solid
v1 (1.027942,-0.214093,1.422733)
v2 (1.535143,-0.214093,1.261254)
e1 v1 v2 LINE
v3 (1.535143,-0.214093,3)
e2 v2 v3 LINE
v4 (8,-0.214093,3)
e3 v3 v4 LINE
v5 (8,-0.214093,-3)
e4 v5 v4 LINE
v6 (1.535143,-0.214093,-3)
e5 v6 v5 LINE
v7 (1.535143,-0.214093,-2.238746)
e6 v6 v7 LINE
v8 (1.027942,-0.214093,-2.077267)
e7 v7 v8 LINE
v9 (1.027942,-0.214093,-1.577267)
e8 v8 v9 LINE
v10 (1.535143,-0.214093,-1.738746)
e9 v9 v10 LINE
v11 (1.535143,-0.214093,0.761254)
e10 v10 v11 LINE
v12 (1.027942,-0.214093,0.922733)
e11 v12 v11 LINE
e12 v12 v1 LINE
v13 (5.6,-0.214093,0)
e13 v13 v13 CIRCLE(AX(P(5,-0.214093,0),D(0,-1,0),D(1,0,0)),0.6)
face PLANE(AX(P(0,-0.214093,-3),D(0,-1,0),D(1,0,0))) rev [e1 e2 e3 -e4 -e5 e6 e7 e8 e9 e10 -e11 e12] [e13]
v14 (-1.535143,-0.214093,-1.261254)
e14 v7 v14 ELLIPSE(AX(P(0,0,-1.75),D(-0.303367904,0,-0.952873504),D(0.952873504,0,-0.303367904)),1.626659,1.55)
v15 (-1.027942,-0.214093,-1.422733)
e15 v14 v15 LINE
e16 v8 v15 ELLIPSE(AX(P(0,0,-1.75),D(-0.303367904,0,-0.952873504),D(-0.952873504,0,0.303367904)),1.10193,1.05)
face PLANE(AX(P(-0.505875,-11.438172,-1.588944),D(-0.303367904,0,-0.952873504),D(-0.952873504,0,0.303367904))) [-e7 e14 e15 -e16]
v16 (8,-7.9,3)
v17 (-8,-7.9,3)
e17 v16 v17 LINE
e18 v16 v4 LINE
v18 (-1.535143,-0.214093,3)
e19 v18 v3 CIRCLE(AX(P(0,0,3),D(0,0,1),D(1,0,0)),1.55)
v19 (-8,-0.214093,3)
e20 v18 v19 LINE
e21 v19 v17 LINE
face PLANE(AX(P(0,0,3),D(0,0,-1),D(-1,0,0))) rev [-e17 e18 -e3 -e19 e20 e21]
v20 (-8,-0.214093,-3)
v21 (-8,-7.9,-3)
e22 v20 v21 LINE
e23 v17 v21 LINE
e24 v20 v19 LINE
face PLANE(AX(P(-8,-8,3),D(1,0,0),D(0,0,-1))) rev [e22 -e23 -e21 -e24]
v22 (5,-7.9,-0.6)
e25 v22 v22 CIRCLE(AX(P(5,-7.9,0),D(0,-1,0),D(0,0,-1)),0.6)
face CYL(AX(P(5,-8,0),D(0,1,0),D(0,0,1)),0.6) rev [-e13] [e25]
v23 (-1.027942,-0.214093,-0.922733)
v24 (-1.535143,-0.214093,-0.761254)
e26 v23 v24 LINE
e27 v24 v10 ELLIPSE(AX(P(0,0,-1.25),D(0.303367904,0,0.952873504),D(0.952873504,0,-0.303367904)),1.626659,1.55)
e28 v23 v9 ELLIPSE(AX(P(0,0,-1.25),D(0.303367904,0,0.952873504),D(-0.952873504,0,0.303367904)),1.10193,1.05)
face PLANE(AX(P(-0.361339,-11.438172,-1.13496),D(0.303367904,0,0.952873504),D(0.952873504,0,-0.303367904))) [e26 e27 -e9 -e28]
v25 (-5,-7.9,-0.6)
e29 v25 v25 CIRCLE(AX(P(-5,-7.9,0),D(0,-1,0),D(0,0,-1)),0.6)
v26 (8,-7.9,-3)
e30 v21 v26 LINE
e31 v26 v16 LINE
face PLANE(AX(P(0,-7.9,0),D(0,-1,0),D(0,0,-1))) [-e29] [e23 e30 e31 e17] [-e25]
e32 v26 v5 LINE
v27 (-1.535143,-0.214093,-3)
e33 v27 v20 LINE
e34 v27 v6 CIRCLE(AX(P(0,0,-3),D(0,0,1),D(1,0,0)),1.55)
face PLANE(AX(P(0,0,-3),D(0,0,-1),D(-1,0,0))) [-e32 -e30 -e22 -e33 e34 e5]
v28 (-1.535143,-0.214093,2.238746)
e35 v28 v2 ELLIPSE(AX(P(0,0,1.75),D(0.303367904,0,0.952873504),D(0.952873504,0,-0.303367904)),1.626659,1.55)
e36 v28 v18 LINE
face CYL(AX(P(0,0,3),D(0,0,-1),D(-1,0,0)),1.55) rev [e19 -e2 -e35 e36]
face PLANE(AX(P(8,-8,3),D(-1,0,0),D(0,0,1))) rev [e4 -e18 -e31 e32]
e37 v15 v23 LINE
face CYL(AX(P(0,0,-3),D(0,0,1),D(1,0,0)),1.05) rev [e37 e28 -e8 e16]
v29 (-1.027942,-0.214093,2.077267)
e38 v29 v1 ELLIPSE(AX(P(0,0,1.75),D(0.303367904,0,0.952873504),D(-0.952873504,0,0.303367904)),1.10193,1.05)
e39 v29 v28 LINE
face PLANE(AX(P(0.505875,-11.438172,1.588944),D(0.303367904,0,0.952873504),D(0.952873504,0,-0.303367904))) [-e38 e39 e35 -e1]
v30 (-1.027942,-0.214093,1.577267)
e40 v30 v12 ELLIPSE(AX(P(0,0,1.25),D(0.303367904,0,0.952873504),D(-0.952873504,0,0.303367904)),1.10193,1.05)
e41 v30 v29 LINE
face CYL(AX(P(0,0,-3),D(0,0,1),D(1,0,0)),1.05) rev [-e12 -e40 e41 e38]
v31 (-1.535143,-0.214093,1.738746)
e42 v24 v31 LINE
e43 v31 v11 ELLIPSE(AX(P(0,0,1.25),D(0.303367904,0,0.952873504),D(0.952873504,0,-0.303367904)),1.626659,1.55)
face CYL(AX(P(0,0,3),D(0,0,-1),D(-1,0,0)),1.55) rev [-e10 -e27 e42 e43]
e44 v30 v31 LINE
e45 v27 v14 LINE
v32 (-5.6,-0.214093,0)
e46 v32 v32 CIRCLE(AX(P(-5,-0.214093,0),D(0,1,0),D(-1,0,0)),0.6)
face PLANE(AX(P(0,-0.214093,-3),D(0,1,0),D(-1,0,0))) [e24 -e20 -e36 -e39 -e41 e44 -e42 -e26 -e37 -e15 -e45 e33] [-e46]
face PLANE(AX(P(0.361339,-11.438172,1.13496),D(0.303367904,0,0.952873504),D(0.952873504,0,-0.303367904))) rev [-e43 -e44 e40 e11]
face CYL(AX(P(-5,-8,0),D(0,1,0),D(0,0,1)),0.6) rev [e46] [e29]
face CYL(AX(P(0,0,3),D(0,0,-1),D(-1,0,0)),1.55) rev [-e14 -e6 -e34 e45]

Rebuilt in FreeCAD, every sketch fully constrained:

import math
import FreeCAD as App
import Part
import Sketcher

V = App.Vector
Q = App.Units.Quantity


def add_polygon(sketch, points):
    """Adds a closed chain of lines whose ends are joined by coincident constraints."""
    first, n = sketch.GeometryCount, len(points)
    for a, b in zip(points, points[1:] + points[:1]):
        sketch.addGeometry(Part.LineSegment(App.Vector(*a, 0), App.Vector(*b, 0)), False)
    for i in range(n):
        sketch.addConstraint(Sketcher.Constraint("Coincident", first + i, 2, first + (i + 1) % n, 1))

doc = App.newDocument("Part")
body = doc.addObject("PartDesign::Body", "Body")

# Sketch on XY plane
sketch1 = body.newObject("Sketcher::SketchObject", "Sketch")
sketch1.AttachmentSupport = (doc.getObject("XY_Plane"), [""])
sketch1.MapMode = "FlatFace"
add_polygon(sketch1, [(-8, 8), (-8, -8), (8, -8), (8, 8)])  # lines 0-3
sketch1.addGeometry(Part.Circle(V(0, 0, 0), V(0, 0, 1), 1.6), False)  # 4
sketch1.addConstraint(Sketcher.Constraint("Vertical", 0))
sketch1.addConstraint(Sketcher.Constraint("Horizontal", 1))
sketch1.addConstraint(Sketcher.Constraint("Vertical", 2))
sketch1.addConstraint(Sketcher.Constraint("Horizontal", 3))
sketch1.addConstraint(Sketcher.Constraint("Coincident", 4, 3, -1, 1))
sketch1.addConstraint(Sketcher.Constraint("Symmetric", 0, 2, 2, 2, -1, 1))
sketch1.addConstraint(Sketcher.Constraint("Equal", 3, 0))
sketch1.addConstraint(Sketcher.Constraint("Diameter", 4, 3.1))
sketch1.addConstraint(Sketcher.Constraint("DistanceX", 1, 1, 1, 2, 16.0))
pad1 = body.newObject("PartDesign::Pad", "Pad")
pad1.Profile = sketch1
pad1.Length = 6
pad1.Midplane = True

# Sketch on XZ plane
sketch2 = body.newObject("Sketcher::SketchObject", "Sketch001")
sketch2.AttachmentSupport = (doc.getObject("XZ_Plane"), [""])
sketch2.MapMode = "FlatFace"
add_polygon(sketch2, [(-1.55, 1.74), (-1.55, 2.24), (1.55, 1.26), (1.55, 0.76)])  # lines 0-3
add_polygon(sketch2, [(-1.55, -1.26), (-1.55, -0.76), (1.55, -1.74), (1.55, -2.24)])  # lines 4-7
sketch2.addConstraint(Sketcher.Constraint("Vertical", 0))
sketch2.addConstraint(Sketcher.Constraint("Vertical", 2))
sketch2.addConstraint(Sketcher.Constraint("Vertical", 4))
sketch2.addConstraint(Sketcher.Constraint("Vertical", 6))
sketch2.addConstraint(Sketcher.Constraint("Symmetric", 2, 2, 4, 2, -1, 1))
sketch2.addConstraint(Sketcher.Constraint("Symmetric", 3, 2, 5, 2, -1, 1))
sketch2.addConstraint(Sketcher.Constraint("Parallel", 1, 3))
sketch2.addConstraint(Sketcher.Constraint("Parallel", 5, 7))
sketch2.addConstraint(Sketcher.Constraint("Vertical", 3, 2, 4, 2))
sketch2.addConstraint(Sketcher.Constraint("Equal", 2, 4))
sketch2.addConstraint(Sketcher.Constraint("DistanceY", 0, 1, 0, 2, 0.5))
sketch2.addConstraint(Sketcher.Constraint("DistanceY", 4, 2, 0, 2, 3.0))
sketch2.addConstraint(Sketcher.Constraint("Angle", 1, Q("-17.66 deg")))
sketch2.addConstraint(Sketcher.Constraint("DistanceX", 0, 2, 1, 2, 3.1))
pad2 = body.newObject("PartDesign::Pad", "Pad001")
pad2.Profile = sketch2
pad2.Length = 8

# Sketch on XY plane
sketch3 = body.newObject("Sketcher::SketchObject", "Sketch002")
sketch3.AttachmentSupport = (doc.getObject("XY_Plane"), [""])
sketch3.MapMode = "FlatFace"
sketch3.addGeometry(Part.LineSegment(V(8, 8, 0), V(-8, 8, 0)), False)
sketch3.addGeometry(Part.LineSegment(V(-8, 8, 0), V(-8, -0.2, 0)), False)
sketch3.addGeometry(Part.LineSegment(V(-8, -0.2, 0), V(-1, -0.2, 0)), False)
sketch3.addGeometry(Part.ArcOfCircle(Part.Circle(V(0, 0, 0), V(0, 0, 1), 1.1), math.radians(-168), math.radians(-12)), False)
sketch3.addGeometry(Part.LineSegment(V(1, -0.2, 0), V(8, -0.2, 0)), False)
sketch3.addGeometry(Part.LineSegment(V(8, -0.2, 0), V(8, 8, 0)), False)
sketch3.addConstraint(Sketcher.Constraint("Coincident", 0, 2, 1, 1))
sketch3.addConstraint(Sketcher.Constraint("Coincident", 1, 2, 2, 1))
sketch3.addConstraint(Sketcher.Constraint("Coincident", 2, 2, 3, 1))
sketch3.addConstraint(Sketcher.Constraint("Coincident", 3, 2, 4, 1))
sketch3.addConstraint(Sketcher.Constraint("Coincident", 4, 2, 5, 1))
sketch3.addConstraint(Sketcher.Constraint("Coincident", 5, 2, 0, 1))
sketch3.addConstraint(Sketcher.Constraint("Horizontal", 0))
sketch3.addConstraint(Sketcher.Constraint("Vertical", 1))
sketch3.addConstraint(Sketcher.Constraint("Horizontal", 2))
sketch3.addConstraint(Sketcher.Constraint("Horizontal", 4))
sketch3.addConstraint(Sketcher.Constraint("Vertical", 5))
sketch3.addConstraint(Sketcher.Constraint("Coincident", 3, 3, -1, 1))
sketch3.addConstraint(Sketcher.Constraint("Symmetric", 1, 2, 4, 2, -2))
sketch3.addConstraint(Sketcher.Constraint("DistanceX", 0, 2, 0, 1, 16.0))
sketch3.addConstraint(Sketcher.Constraint("Radius", 3, 1.05))
sketch3.addConstraint(Sketcher.Constraint("DistanceY", -1, 1, 0, 2, 8.0))
sketch3.addConstraint(Sketcher.Constraint("DistanceX", 2, 1, 2, 2, 6.972058))
pocket1 = body.newObject("PartDesign::Pocket", "Pocket")
pocket1.Profile = sketch3
pocket1.Type = "ThroughAll"
pocket1.Midplane = True

# Sketch on XZ plane
sketch4 = body.newObject("Sketcher::SketchObject", "Sketch003")
sketch4.AttachmentSupport = (doc.getObject("XZ_Plane"), [""])
sketch4.MapMode = "FlatFace"
sketch4.addGeometry(Part.Circle(V(-5, 0, 0), V(0, 0, 1), 0.6), False)
sketch4.addGeometry(Part.Circle(V(5, 0, 0), V(0, 0, 1), 0.6), False)
sketch4.addConstraint(Sketcher.Constraint("Equal", 0, 1))
sketch4.addConstraint(Sketcher.Constraint("Symmetric", 0, 3, 1, 3, -1, 1))
sketch4.addConstraint(Sketcher.Constraint("PointOnObject", 0, 3, -1))
sketch4.addConstraint(Sketcher.Constraint("Diameter", 0, 1.2))
sketch4.addConstraint(Sketcher.Constraint("DistanceX", 0, 3, -1, 1, 5.0))
pocket2 = body.newObject("PartDesign::Pocket", "Pocket001")
pocket2.Profile = sketch4
pocket2.Type = "ThroughAll"
pocket2.Reversed = True

# Sketch on XZ plane
sketch5 = body.newObject("Sketcher::SketchObject", "Sketch004")
sketch5.AttachmentSupport = (doc.getObject("XZ_Plane"), [""])
sketch5.MapMode = "FlatFace"
sketch5.AttachmentOffset = App.Placement(V(0, 0, 7.9), App.Rotation())
add_polygon(sketch5, [(-8, 3), (-8, -3), (8, -3), (8, 3)])  # lines 0-3
sketch5.addGeometry(Part.Circle(V(-5, 0, 0), V(0, 0, 1), 0.6), False)  # 4
sketch5.addGeometry(Part.Circle(V(5, 0, 0), V(0, 0, 1), 0.6), False)  # 5
sketch5.addConstraint(Sketcher.Constraint("Vertical", 0))
sketch5.addConstraint(Sketcher.Constraint("Horizontal", 1))
sketch5.addConstraint(Sketcher.Constraint("Vertical", 2))
sketch5.addConstraint(Sketcher.Constraint("Horizontal", 3))
sketch5.addConstraint(Sketcher.Constraint("Equal", 4, 5))
sketch5.addConstraint(Sketcher.Constraint("Symmetric", 4, 3, 5, 3, -1, 1))
sketch5.addConstraint(Sketcher.Constraint("Symmetric", 0, 2, 2, 2, -1, 1))
sketch5.addConstraint(Sketcher.Constraint("PointOnObject", 4, 3, -1))
sketch5.addConstraint(Sketcher.Constraint("Diameter", 4, 1.2))
sketch5.addConstraint(Sketcher.Constraint("DistanceX", 1, 1, 1, 2, 16.0))
sketch5.addConstraint(Sketcher.Constraint("DistanceY", 0, 2, 0, 1, 6.0))
sketch5.addConstraint(Sketcher.Constraint("DistanceX", 4, 3, -1, 1, 5.0))
pocket3 = body.newObject("PartDesign::Pocket", "Pocket002")
pocket3.Profile = sketch5
pocket3.Length = 0.1
pocket3.Reversed = True

doc.recompute()
